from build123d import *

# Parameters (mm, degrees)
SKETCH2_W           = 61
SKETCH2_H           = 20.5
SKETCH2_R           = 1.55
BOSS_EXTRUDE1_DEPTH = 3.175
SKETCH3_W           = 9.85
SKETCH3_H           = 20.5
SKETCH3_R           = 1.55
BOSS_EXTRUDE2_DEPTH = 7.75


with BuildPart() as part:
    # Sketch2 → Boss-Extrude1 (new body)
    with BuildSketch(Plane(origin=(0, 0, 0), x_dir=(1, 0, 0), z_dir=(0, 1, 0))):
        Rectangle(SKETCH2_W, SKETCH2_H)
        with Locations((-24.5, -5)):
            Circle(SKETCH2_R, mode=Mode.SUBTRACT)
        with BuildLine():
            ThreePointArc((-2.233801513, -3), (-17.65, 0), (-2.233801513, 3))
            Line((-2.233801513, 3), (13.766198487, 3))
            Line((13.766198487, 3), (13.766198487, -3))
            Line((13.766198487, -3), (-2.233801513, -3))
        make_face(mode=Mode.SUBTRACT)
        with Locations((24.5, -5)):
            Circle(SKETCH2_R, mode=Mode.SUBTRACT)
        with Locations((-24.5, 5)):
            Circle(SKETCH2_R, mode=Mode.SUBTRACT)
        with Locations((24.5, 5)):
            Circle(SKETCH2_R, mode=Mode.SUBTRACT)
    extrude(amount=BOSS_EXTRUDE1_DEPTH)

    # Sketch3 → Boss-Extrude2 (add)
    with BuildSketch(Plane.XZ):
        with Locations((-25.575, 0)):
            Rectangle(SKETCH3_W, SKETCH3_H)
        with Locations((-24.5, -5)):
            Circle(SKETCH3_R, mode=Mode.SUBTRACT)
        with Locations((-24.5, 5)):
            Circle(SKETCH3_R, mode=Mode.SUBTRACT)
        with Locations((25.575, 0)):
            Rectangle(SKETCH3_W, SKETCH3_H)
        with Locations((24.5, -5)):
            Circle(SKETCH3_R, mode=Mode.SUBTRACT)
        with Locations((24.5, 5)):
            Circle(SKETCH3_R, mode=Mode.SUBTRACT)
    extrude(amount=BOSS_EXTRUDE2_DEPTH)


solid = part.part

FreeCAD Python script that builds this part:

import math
import FreeCAD as App
import Part
import Sketcher

V = App.Vector
Q = App.Units.Quantity


def add_polygon(sketch, points):
    """Adds a closed chain of lines whose ends are joined by coincident constraints."""
    first, n = sketch.GeometryCount, len(points)
    for a, b in zip(points, points[1:] + points[:1]):
        sketch.addGeometry(Part.LineSegment(App.Vector(*a, 0), App.Vector(*b, 0)), False)
    for i in range(n):
        sketch.addConstraint(Sketcher.Constraint("Coincident", first + i, 2, first + (i + 1) % n, 1))

doc = App.newDocument("Part")
body = doc.addObject("PartDesign::Body", "Body")

# Sketch on XZ plane
sketch1 = body.newObject("Sketcher::SketchObject", "Sketch")
sketch1.AttachmentSupport = (doc.getObject("XZ_Plane"), [""])
sketch1.MapMode = "FlatFace"
add_polygon(sketch1, [(-30.5, -10.25), (-30.5, 10.25), (30.5, 10.25), (30.5, -10.25)])  # lines 0-3
sketch1.addGeometry(Part.Circle(V(-24.5, 5, 0), V(0, 0, 1), 1.55), False)  # 4
sketch1.addGeometry(Part.Circle(V(24.5, 5, 0), V(0, 0, 1), 1.55), False)  # 5
sketch1.addGeometry(Part.LineSegment(V(13.766198, 3, 0), V(-2.233802, 3, 0)), False)  # 6
sketch1.addGeometry(Part.ArcOfCircle(Part.Circle(V(-9.65, 0, 0), V(0, 0, 1), 8), math.radians(22.024313), math.radians(337.975687)), False)  # 7
sketch1.addGeometry(Part.LineSegment(V(-2.233802, -3, 0), V(13.766198, -3, 0)), False)  # 8
sketch1.addGeometry(Part.LineSegment(V(13.766198, -3, 0), V(13.766198, 3, 0)), False)  # 9
sketch1.addGeometry(Part.Circle(V(-24.5, -5, 0), V(0, 0, 1), 1.55), False)  # 10
sketch1.addGeometry(Part.Circle(V(24.5, -5, 0), V(0, 0, 1), 1.55), False)  # 11
sketch1.addConstraint(Sketcher.Constraint("Coincident", 6, 2, 7, 1))
sketch1.addConstraint(Sketcher.Constraint("Coincident", 7, 2, 8, 1))
sketch1.addConstraint(Sketcher.Constraint("Coincident", 8, 2, 9, 1))
sketch1.addConstraint(Sketcher.Constraint("Coincident", 9, 2, 6, 1))
sketch1.addConstraint(Sketcher.Constraint("Vertical", 0))
sketch1.addConstraint(Sketcher.Constraint("Horizontal", 1))
sketch1.addConstraint(Sketcher.Constraint("Vertical", 2))
sketch1.addConstraint(Sketcher.Constraint("Horizontal", 3))
sketch1.addConstraint(Sketcher.Constraint("Horizontal", 6))
sketch1.addConstraint(Sketcher.Constraint("Horizontal", 8))
sketch1.addConstraint(Sketcher.Constraint("Vertical", 9))
sketch1.addConstraint(Sketcher.Constraint("Equal", 4, 5))
sketch1.addConstraint(Sketcher.Constraint("Equal", 5, 10))
sketch1.addConstraint(Sketcher.Constraint("Equal", 10, 11))
sketch1.addConstraint(Sketcher.Constraint("Symmetric", 5, 3, 10, 3, -1, 1))
sketch1.addConstraint(Sketcher.Constraint("Symmetric", 4, 3, 11, 3, -1, 1))
sketch1.addConstraint(Sketcher.Constraint("Symmetric", 0, 2, 2, 2, -1, 1))
sketch1.addConstraint(Sketcher.Constraint("Symmetric", 4, 3, 5, 3, -2))
sketch1.addConstraint(Sketcher.Constraint("Symmetric", 6, 2, 7, 2, -1))
sketch1.addConstraint(Sketcher.Constraint("Radius", 7, Q("8 mm")))
sketch1.addConstraint(Sketcher.Constraint("Diameter", 4, Q("3.1 mm")))
sketch1.addConstraint(Sketcher.Constraint("DistanceX", 1, 1, 1, 2, Q("61 mm")))
sketch1.addConstraint(Sketcher.Constraint("DistanceX", 6, 2, 6, 1, Q("16 mm")))
sketch1.addConstraint(Sketcher.Constraint("DistanceY", 9, 1, 9, 2, Q("6 mm")))
sketch1.addConstraint(Sketcher.Constraint("DistanceY", 0, 1, 0, 2, Q("20.5 mm")))
sketch1.addConstraint(Sketcher.Constraint("DistanceY", -1, 1, 4, 3, Q("5 mm")))
sketch1.addConstraint(Sketcher.Constraint("DistanceX", 4, 3, 5, 3, Q("49 mm")))
sketch1.addConstraint(Sketcher.Constraint("DistanceX", 7, 3, -1, 1, Q("9.65 mm")))
pad1 = body.newObject("PartDesign::Pad", "Pad")
pad1.Profile = sketch1
pad1.Length = 3.175
pad1.Reversed = True

# Sketch on XZ plane
sketch2 = body.newObject("Sketcher::SketchObject", "Sketch001")
sketch2.AttachmentSupport = (doc.getObject("XZ_Plane"), [""])
sketch2.MapMode = "FlatFace"
add_polygon(sketch2, [(-30.5, 10.25), (-30.5, -10.25), (-20.65, -10.25), (-20.65, 10.25)])  # lines 0-3
sketch2.addGeometry(Part.Circle(V(-24.5, -5, 0), V(0, 0, 1), 1.55), False)  # 4
sketch2.addGeometry(Part.Circle(V(-24.5, 5, 0), V(0, 0, 1), 1.55), False)  # 5
add_polygon(sketch2, [(20.65, 10.25), (20.65, -10.25), (30.5, -10.25), (30.5, 10.25)])  # lines 6-9
sketch2.addGeometry(Part.Circle(V(24.5, -5, 0), V(0, 0, 1), 1.55), False)  # 10
sketch2.addGeometry(Part.Circle(V(24.5, 5, 0), V(0, 0, 1), 1.55), False)  # 11
sketch2.addConstraint(Sketcher.Constraint("Vertical", 0))
sketch2.addConstraint(Sketcher.Constraint("Horizontal", 1))
sketch2.addConstraint(Sketcher.Constraint("Vertical", 2))
sketch2.addConstraint(Sketcher.Constraint("Horizontal", 3))
sketch2.addConstraint(Sketcher.Constraint("Vertical", 6))
sketch2.addConstraint(Sketcher.Constraint("Horizontal", 7))
sketch2.addConstraint(Sketcher.Constraint("Vertical", 8))
sketch2.addConstraint(Sketcher.Constraint("Horizontal", 9))
sketch2.addConstraint(Sketcher.Constraint("Equal", 4, 5))
sketch2.addConstraint(Sketcher.Constraint("Equal", 5, 10))
sketch2.addConstraint(Sketcher.Constraint("Equal", 10, 11))
sketch2.addConstraint(Sketcher.Constraint("Symmetric", 5, 3, 10, 3, -1, 1))
sketch2.addConstraint(Sketcher.Constraint("Symmetric", 4, 3, 11, 3, -1, 1))
sketch2.addConstraint(Sketcher.Constraint("Symmetric", 2, 2, 6, 2, -1, 1))
sketch2.addConstraint(Sketcher.Constraint("Symmetric", 0, 2, 8, 2, -1, 1))
sketch2.addConstraint(Sketcher.Constraint("Symmetric", 4, 3, 10, 3, -2))
sketch2.addConstraint(Sketcher.Constraint("Horizontal", 1, 2, 6, 2))
sketch2.addConstraint(Sketcher.Constraint("Diameter", 4, Q("3.1 mm")))
sketch2.addConstraint(Sketcher.Constraint("DistanceY", 0, 2, 0, 1, Q("20.5 mm")))
sketch2.addConstraint(Sketcher.Constraint("DistanceY", 4, 3, -1, 1, Q("5 mm")))
sketch2.addConstraint(Sketcher.Constraint("DistanceX", 4, 3, 10, 3, Q("49 mm")))
sketch2.addConstraint(Sketcher.Constraint("DistanceX", 0, 2, 4, 3, Q("6 mm")))
sketch2.addConstraint(Sketcher.Constraint("DistanceX", 1, 1, 1, 2, Q("9.85 mm")))
pad2 = body.newObject("PartDesign::Pad", "Pad001")
pad2.Profile = sketch2
pad2.Length = 7.75

doc.recompute()
